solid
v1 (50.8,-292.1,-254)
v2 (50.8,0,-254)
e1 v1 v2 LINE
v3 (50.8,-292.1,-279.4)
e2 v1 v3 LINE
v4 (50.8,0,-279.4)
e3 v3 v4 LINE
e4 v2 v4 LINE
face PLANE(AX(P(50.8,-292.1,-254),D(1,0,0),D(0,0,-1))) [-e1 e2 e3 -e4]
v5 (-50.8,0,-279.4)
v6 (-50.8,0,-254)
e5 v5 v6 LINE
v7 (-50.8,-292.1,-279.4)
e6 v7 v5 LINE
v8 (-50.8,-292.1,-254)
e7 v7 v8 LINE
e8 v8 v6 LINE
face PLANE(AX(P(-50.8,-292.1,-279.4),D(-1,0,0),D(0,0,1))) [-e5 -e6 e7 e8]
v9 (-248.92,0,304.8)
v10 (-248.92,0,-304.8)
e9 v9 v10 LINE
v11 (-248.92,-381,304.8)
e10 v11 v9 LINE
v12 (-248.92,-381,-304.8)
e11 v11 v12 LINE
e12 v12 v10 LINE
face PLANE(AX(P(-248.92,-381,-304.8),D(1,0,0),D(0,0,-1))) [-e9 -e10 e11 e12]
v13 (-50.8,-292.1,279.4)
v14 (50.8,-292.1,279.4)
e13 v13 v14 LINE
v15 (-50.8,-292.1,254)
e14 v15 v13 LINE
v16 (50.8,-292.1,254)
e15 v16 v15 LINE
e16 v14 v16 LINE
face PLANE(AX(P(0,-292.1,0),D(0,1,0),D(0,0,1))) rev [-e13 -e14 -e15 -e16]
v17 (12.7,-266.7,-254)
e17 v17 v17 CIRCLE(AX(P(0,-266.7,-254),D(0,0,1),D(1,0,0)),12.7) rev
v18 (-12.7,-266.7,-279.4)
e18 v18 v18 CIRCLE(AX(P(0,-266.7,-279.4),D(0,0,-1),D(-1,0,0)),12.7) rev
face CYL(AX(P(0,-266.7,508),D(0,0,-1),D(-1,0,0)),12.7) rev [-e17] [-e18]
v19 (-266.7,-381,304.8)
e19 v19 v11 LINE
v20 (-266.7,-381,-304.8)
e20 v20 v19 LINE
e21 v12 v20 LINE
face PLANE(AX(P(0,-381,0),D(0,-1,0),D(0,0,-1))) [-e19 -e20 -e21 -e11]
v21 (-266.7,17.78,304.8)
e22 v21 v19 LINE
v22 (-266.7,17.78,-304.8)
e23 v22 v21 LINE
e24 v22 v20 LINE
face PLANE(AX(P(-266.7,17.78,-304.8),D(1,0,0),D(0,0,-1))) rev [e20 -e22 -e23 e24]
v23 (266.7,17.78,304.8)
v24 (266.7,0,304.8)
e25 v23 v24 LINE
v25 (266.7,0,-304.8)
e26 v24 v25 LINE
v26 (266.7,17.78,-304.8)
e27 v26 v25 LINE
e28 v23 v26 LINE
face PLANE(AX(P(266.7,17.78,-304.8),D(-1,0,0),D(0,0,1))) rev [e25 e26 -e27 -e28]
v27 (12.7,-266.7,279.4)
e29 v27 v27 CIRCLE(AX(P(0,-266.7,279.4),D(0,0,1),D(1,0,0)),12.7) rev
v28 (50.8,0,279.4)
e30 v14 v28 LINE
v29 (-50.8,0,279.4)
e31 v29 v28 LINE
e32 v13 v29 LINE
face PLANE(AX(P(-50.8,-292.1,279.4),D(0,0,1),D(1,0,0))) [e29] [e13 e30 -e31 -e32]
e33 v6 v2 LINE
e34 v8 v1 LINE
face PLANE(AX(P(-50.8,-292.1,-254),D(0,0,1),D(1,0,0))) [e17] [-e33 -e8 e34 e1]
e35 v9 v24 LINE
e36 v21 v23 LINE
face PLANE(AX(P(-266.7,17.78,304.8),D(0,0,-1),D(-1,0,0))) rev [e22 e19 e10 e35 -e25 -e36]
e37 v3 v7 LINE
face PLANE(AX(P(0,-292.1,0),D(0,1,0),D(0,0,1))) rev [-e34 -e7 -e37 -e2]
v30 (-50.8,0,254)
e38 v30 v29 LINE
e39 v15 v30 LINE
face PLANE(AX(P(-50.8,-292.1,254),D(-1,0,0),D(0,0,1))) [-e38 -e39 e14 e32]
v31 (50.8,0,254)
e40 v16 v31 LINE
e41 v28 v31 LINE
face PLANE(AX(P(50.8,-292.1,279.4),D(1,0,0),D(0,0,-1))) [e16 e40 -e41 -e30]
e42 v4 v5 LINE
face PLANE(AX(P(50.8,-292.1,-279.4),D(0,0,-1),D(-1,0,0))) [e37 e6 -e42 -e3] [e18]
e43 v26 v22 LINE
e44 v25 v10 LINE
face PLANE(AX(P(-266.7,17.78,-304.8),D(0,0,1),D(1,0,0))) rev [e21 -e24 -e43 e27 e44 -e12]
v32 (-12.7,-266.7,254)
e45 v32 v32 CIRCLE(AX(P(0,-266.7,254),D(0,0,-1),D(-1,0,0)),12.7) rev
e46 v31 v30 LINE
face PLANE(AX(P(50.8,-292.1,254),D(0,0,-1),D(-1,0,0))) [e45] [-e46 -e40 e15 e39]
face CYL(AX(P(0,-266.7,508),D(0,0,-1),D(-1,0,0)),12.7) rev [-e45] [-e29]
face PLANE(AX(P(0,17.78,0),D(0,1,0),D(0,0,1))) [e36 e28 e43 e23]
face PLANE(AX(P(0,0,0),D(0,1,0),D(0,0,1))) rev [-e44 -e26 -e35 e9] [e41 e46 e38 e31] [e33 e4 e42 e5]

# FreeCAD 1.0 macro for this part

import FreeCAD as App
import Part
import Sketcher
from FreeCAD import Vector
Q = App.Units.Quantity

doc = App.newDocument("Part")
body = doc.addObject("PartDesign::Body", "Body")

# Sketch on XZ plane
sketch1 = body.newObject("Sketcher::SketchObject", "Sketch")
sketch1.AttachmentSupport = (doc.getObject("XZ_Plane"), [""])
sketch1.MapMode = "FlatFace"
sketch1.addGeometry(Part.LineSegment(Vector(-267, -305, 0), Vector(-267, 305, 0)), False)
sketch1.addGeometry(Part.LineSegment(Vector(-267, 305, 0), Vector(267, 305, 0)), False)
sketch1.addGeometry(Part.LineSegment(Vector(267, 305, 0), Vector(267, -305, 0)), False)
sketch1.addGeometry(Part.LineSegment(Vector(267, -305, 0), Vector(-267, -305, 0)), False)
sketch1.addGeometry(Part.LineSegment(Vector(51, 279, 0), Vector(-51, 279, 0)), False)
sketch1.addGeometry(Part.LineSegment(Vector(-51, 279, 0), Vector(-51, 254, 0)), False)
sketch1.addGeometry(Part.LineSegment(Vector(-51, 254, 0), Vector(51, 254, 0)), False)
sketch1.addGeometry(Part.LineSegment(Vector(51, 254, 0), Vector(51, 279, 0)), False)
sketch1.addGeometry(Part.LineSegment(Vector(51, -254, 0), Vector(-51, -254, 0)), False)
sketch1.addGeometry(Part.LineSegment(Vector(-51, -254, 0), Vector(-51, -279, 0)), False)
sketch1.addGeometry(Part.LineSegment(Vector(-51, -279, 0), Vector(51, -279, 0)), False)
sketch1.addGeometry(Part.LineSegment(Vector(51, -279, 0), Vector(51, -254, 0)), False)
sketch1.addConstraint(Sketcher.Constraint("Coincident", 0, 2, 1, 1))
sketch1.addConstraint(Sketcher.Constraint("Coincident", 1, 2, 2, 1))
sketch1.addConstraint(Sketcher.Constraint("Coincident", 2, 2, 3, 1))
sketch1.addConstraint(Sketcher.Constraint("Coincident", 3, 2, 0, 1))
sketch1.addConstraint(Sketcher.Constraint("Coincident", 4, 2, 5, 1))
sketch1.addConstraint(Sketcher.Constraint("Coincident", 5, 2, 6, 1))
sketch1.addConstraint(Sketcher.Constraint("Coincident", 6, 2, 7, 1))
sketch1.addConstraint(Sketcher.Constraint("Coincident", 7, 2, 4, 1))
sketch1.addConstraint(Sketcher.Constraint("Coincident", 8, 2, 9, 1))
sketch1.addConstraint(Sketcher.Constraint("Coincident", 9, 2, 10, 1))
sketch1.addConstraint(Sketcher.Constraint("Coincident", 10, 2, 11, 1))
sketch1.addConstraint(Sketcher.Constraint("Coincident", 11, 2, 8, 1))
sketch1.addConstraint(Sketcher.Constraint("Vertical", 0))
sketch1.addConstraint(Sketcher.Constraint("Horizontal", 1))
sketch1.addConstraint(Sketcher.Constraint("Vertical", 2))
sketch1.addConstraint(Sketcher.Constraint("Horizontal", 3))
sketch1.addConstraint(Sketcher.Constraint("Horizontal", 4))
sketch1.addConstraint(Sketcher.Constraint("Vertical", 5))
sketch1.addConstraint(Sketcher.Constraint("Horizontal", 6))
sketch1.addConstraint(Sketcher.Constraint("Vertical", 7))
sketch1.addConstraint(Sketcher.Constraint("Horizontal", 8))
sketch1.addConstraint(Sketcher.Constraint("Vertical", 9))
sketch1.addConstraint(Sketcher.Constraint("Horizontal", 10))
sketch1.addConstraint(Sketcher.Constraint("Vertical", 11))
sketch1.addConstraint(Sketcher.Constraint("Symmetric", 0, 2, 2, 2, -1, 1))
sketch1.addConstraint(Sketcher.Constraint("Symmetric", 6, 2, 8, 2, -1, 1))
sketch1.addConstraint(Sketcher.Constraint("Symmetric", 4, 2, 10, 2, -1, 1))
sketch1.addConstraint(Sketcher.Constraint("Vertical", 5, 2, 8, 2))
sketch1.addConstraint(Sketcher.Constraint("DistanceX", 1, 1, 1, 2, Q("21 in")))
sketch1.addConstraint(Sketcher.Constraint("DistanceX", 4, 2, 4, 1, Q("4 in")))
sketch1.addConstraint(Sketcher.Constraint("DistanceY", 0, 1, 0, 2, Q("24 in")))
sketch1.addConstraint(Sketcher.Constraint("DistanceY", 5, 2, 5, 1, Q("1 in")))
sketch1.addConstraint(Sketcher.Constraint("DistanceY", -1, 1, 4, 2, Q("11 in")))
pad1 = body.newObject("PartDesign::Pad", "Pad")
pad1.Profile = sketch1
pad1.Length = Q("0.7 in")
pad1.Reversed = True

# Sketch on XZ plane
sketch2 = body.newObject("Sketcher::SketchObject", "Sketch001")
sketch2.AttachmentSupport = (doc.getObject("XZ_Plane"), [""])
sketch2.MapMode = "FlatFace"
sketch2.addGeometry(Part.LineSegment(Vector(-51, 254, 0), Vector(-51, 279, 0)), False)
sketch2.addGeometry(Part.LineSegment(Vector(-51, 279, 0), Vector(51, 279, 0)), False)
sketch2.addGeometry(Part.LineSegment(Vector(51, 279, 0), Vector(51, 254, 0)), False)
sketch2.addGeometry(Part.LineSegment(Vector(51, 254, 0), Vector(-51, 254, 0)), False)
sketch2.addGeometry(Part.LineSegment(Vector(-51, -279, 0), Vector(-51, -254, 0)), False)
sketch2.addGeometry(Part.LineSegment(Vector(-51, -254, 0), Vector(51, -254, 0)), False)
sketch2.addGeometry(Part.LineSegment(Vector(51, -254, 0), Vector(51, -279, 0)), False)
sketch2.addGeometry(Part.LineSegment(Vector(51, -279, 0), Vector(-51, -279, 0)), False)
sketch2.addConstraint(Sketcher.Constraint("Coincident", 0, 2, 1, 1))
sketch2.addConstraint(Sketcher.Constraint("Coincident", 1, 2, 2, 1))
sketch2.addConstraint(Sketcher.Constraint("Coincident", 2, 2, 3, 1))
sketch2.addConstraint(Sketcher.Constraint("Coincident", 3, 2, 0, 1))
sketch2.addConstraint(Sketcher.Constraint("Coincident", 4, 2, 5, 1))
sketch2.addConstraint(Sketcher.Constraint("Coincident", 5, 2, 6, 1))
sketch2.addConstraint(Sketcher.Constraint("Coincident", 6, 2, 7, 1))
sketch2.addConstraint(Sketcher.Constraint("Coincident", 7, 2, 4, 1))
sketch2.addConstraint(Sketcher.Constraint("Vertical", 0))
sketch2.addConstraint(Sketcher.Constraint("Horizontal", 1))
sketch2.addConstraint(Sketcher.Constraint("Vertical", 2))
sketch2.addConstraint(Sketcher.Constraint("Horizontal", 3))
sketch2.addConstraint(Sketcher.Constraint("Vertical", 4))
sketch2.addConstraint(Sketcher.Constraint("Horizontal", 5))
sketch2.addConstraint(Sketcher.Constraint("Vertical", 6))
sketch2.addConstraint(Sketcher.Constraint("Horizontal", 7))
sketch2.addConstraint(Sketcher.Constraint("Symmetric", 2, 2, 4, 2, -1, 1))
sketch2.addConstraint(Sketcher.Constraint("Symmetric", 0, 2, 6, 2, -1, 1))
sketch2.addConstraint(Sketcher.Constraint("Vertical", 3, 2, 4, 2))
sketch2.addConstraint(Sketcher.Constraint("DistanceX", 1, 1, 1, 2, Q("4 in")))
sketch2.addConstraint(Sketcher.Constraint("DistanceY", 0, 1, 0, 2, Q("1 in")))
sketch2.addConstraint(Sketcher.Constraint("DistanceY", -1, 1, 0, 2, Q("11 in")))
pad2 = body.newObject("PartDesign::Pad", "Pad001")
pad2.Profile = sketch2
pad2.Length = Q("0.7 in")
pad2.Reversed = True

# Sketch on XZ plane
sketch3 = body.newObject("Sketcher::SketchObject", "Sketch002")
sketch3.AttachmentSupport = (doc.getObject("XZ_Plane"), [""])
sketch3.MapMode = "FlatFace"
sketch3.addGeometry(Part.LineSegment(Vector(-51, 254, 0), Vector(-51, 279, 0)), False)
sketch3.addGeometry(Part.LineSegment(Vector(-51, 279, 0), Vector(51, 279, 0)), False)
sketch3.addGeometry(Part.LineSegment(Vector(51, 279, 0), Vector(51, 254, 0)), False)
sketch3.addGeometry(Part.LineSegment(Vector(51, 254, 0), Vector(-51, 254, 0)), False)
sketch3.addGeometry(Part.LineSegment(Vector(-51, -279, 0), Vector(-51, -254, 0)), False)
sketch3.addGeometry(Part.LineSegment(Vector(-51, -254, 0), Vector(51, -254, 0)), False)
sketch3.addGeometry(Part.LineSegment(Vector(51, -254, 0), Vector(51, -279, 0)), False)
sketch3.addGeometry(Part.LineSegment(Vector(51, -279, 0), Vector(-51, -279, 0)), False)
sketch3.addConstraint(Sketcher.Constraint("Coincident", 0, 2, 1, 1))
sketch3.addConstraint(Sketcher.Constraint("Coincident", 1, 2, 2, 1))
sketch3.addConstraint(Sketcher.Constraint("Coincident", 2, 2, 3, 1))
sketch3.addConstraint(Sketcher.Constraint("Coincident", 3, 2, 0, 1))
sketch3.addConstraint(Sketcher.Constraint("Coincident", 4, 2, 5, 1))
sketch3.addConstraint(Sketcher.Constraint("Coincident", 5, 2, 6, 1))
sketch3.addConstraint(Sketcher.Constraint("Coincident", 6, 2, 7, 1))
sketch3.addConstraint(Sketcher.Constraint("Coincident", 7, 2, 4, 1))
sketch3.addConstraint(Sketcher.Constraint("Vertical", 0))
sketch3.addConstraint(Sketcher.Constraint("Horizontal", 1))
sketch3.addConstraint(Sketcher.Constraint("Vertical", 2))
sketch3.addConstraint(Sketcher.Constraint("Horizontal", 3))
sketch3.addConstraint(Sketcher.Constraint("Vertical", 4))
sketch3.addConstraint(Sketcher.Constraint("Horizontal", 5))
sketch3.addConstraint(Sketcher.Constraint("Vertical", 6))
sketch3.addConstraint(Sketcher.Constraint("Horizontal", 7))
sketch3.addConstraint(Sketcher.Constraint("Symmetric", 2, 2, 4, 2, -1, 1))
sketch3.addConstraint(Sketcher.Constraint("Symmetric", 0, 2, 6, 2, -1, 1))
sketch3.addConstraint(Sketcher.Constraint("Vertical", 3, 2, 4, 2))
sketch3.addConstraint(Sketcher.Constraint("DistanceX", 1, 1, 1, 2, Q("4 in")))
sketch3.addConstraint(Sketcher.Constraint("DistanceY", 0, 1, 0, 2, Q("1 in")))
sketch3.addConstraint(Sketcher.Constraint("DistanceY", -1, 1, 0, 2, Q("11 in")))
pad3 = body.newObject("PartDesign::Pad", "Pad002")
pad3.Profile = sketch3
pad3.Length = Q("11.5 in")

# Sketch on XY plane
sketch4 = body.newObject("Sketcher::SketchObject", "Sketch003")
sketch4.AttachmentSupport = (doc.getObject("XY_Plane"), [""])
sketch4.MapMode = "FlatFace"
sketch4.addGeometry(Part.Circle(Vector(0, -267, 0), Vector(0, 0, 1), 13), False)
sketch4.addConstraint(Sketcher.Constraint("PointOnObject", 0, 3, -2))
sketch4.addConstraint(Sketcher.Constraint("Diameter", 0, Q("1 in")))
sketch4.addConstraint(Sketcher.Constraint("DistanceY", 0, 3, -1, 1, Q("10.5 in")))
pocket1 = body.newObject("PartDesign::Pocket", "Pocket")
pocket1.Profile = sketch4
pocket1.Type = "ThroughAll"
pocket1.Midplane = True

# Sketch on XZ plane
sketch5 = body.newObject("Sketcher::SketchObject", "Sketch004")
sketch5.AttachmentSupport = (doc.getObject("XZ_Plane"), [""])
sketch5.MapMode = "FlatFace"
sketch5.addGeometry(Part.LineSegment(Vector(-267, -305, 0), Vector(-267, 305, 0)), False)
sketch5.addGeometry(Part.LineSegment(Vector(-267, 305, 0), Vector(-249, 305, 0)), False)
sketch5.addGeometry(Part.LineSegment(Vector(-249, 305, 0), Vector(-249, -305, 0)), False)
sketch5.addGeometry(Part.LineSegment(Vector(-249, -305, 0), Vector(-267, -305, 0)), False)
sketch5.addConstraint(Sketcher.Constraint("Coincident", 0, 2, 1, 1))
sketch5.addConstraint(Sketcher.Constraint("Coincident", 1, 2, 2, 1))
sketch5.addConstraint(Sketcher.Constraint("Coincident", 2, 2, 3, 1))
sketch5.addConstraint(Sketcher.Constraint("Coincident", 3, 2, 0, 1))
sketch5.addConstraint(Sketcher.Constraint("Vertical", 0))
sketch5.addConstraint(Sketcher.Constraint("Horizontal", 1))
sketch5.addConstraint(Sketcher.Constraint("Vertical", 2))
sketch5.addConstraint(Sketcher.Constraint("Horizontal", 3))
sketch5.addConstraint(Sketcher.Constraint("DistanceY", 0, 1, 0, 2, Q("24 in")))
sketch5.addConstraint(Sketcher.Constraint("DistanceX", 1, 1, 1, 2, Q("0.7 in")))
sketch5.addConstraint(Sketcher.Constraint("DistanceY", -1, 1, 0, 2, Q("12 in")))
sketch5.addConstraint(Sketcher.Constraint("DistanceX", 0, 2, -1, 1, Q("10.5 in")))
pad4 = body.newObject("PartDesign::Pad", "Pad003")
pad4.Profile = sketch5
pad4.Length = Q("15 in")

doc.recompute()
